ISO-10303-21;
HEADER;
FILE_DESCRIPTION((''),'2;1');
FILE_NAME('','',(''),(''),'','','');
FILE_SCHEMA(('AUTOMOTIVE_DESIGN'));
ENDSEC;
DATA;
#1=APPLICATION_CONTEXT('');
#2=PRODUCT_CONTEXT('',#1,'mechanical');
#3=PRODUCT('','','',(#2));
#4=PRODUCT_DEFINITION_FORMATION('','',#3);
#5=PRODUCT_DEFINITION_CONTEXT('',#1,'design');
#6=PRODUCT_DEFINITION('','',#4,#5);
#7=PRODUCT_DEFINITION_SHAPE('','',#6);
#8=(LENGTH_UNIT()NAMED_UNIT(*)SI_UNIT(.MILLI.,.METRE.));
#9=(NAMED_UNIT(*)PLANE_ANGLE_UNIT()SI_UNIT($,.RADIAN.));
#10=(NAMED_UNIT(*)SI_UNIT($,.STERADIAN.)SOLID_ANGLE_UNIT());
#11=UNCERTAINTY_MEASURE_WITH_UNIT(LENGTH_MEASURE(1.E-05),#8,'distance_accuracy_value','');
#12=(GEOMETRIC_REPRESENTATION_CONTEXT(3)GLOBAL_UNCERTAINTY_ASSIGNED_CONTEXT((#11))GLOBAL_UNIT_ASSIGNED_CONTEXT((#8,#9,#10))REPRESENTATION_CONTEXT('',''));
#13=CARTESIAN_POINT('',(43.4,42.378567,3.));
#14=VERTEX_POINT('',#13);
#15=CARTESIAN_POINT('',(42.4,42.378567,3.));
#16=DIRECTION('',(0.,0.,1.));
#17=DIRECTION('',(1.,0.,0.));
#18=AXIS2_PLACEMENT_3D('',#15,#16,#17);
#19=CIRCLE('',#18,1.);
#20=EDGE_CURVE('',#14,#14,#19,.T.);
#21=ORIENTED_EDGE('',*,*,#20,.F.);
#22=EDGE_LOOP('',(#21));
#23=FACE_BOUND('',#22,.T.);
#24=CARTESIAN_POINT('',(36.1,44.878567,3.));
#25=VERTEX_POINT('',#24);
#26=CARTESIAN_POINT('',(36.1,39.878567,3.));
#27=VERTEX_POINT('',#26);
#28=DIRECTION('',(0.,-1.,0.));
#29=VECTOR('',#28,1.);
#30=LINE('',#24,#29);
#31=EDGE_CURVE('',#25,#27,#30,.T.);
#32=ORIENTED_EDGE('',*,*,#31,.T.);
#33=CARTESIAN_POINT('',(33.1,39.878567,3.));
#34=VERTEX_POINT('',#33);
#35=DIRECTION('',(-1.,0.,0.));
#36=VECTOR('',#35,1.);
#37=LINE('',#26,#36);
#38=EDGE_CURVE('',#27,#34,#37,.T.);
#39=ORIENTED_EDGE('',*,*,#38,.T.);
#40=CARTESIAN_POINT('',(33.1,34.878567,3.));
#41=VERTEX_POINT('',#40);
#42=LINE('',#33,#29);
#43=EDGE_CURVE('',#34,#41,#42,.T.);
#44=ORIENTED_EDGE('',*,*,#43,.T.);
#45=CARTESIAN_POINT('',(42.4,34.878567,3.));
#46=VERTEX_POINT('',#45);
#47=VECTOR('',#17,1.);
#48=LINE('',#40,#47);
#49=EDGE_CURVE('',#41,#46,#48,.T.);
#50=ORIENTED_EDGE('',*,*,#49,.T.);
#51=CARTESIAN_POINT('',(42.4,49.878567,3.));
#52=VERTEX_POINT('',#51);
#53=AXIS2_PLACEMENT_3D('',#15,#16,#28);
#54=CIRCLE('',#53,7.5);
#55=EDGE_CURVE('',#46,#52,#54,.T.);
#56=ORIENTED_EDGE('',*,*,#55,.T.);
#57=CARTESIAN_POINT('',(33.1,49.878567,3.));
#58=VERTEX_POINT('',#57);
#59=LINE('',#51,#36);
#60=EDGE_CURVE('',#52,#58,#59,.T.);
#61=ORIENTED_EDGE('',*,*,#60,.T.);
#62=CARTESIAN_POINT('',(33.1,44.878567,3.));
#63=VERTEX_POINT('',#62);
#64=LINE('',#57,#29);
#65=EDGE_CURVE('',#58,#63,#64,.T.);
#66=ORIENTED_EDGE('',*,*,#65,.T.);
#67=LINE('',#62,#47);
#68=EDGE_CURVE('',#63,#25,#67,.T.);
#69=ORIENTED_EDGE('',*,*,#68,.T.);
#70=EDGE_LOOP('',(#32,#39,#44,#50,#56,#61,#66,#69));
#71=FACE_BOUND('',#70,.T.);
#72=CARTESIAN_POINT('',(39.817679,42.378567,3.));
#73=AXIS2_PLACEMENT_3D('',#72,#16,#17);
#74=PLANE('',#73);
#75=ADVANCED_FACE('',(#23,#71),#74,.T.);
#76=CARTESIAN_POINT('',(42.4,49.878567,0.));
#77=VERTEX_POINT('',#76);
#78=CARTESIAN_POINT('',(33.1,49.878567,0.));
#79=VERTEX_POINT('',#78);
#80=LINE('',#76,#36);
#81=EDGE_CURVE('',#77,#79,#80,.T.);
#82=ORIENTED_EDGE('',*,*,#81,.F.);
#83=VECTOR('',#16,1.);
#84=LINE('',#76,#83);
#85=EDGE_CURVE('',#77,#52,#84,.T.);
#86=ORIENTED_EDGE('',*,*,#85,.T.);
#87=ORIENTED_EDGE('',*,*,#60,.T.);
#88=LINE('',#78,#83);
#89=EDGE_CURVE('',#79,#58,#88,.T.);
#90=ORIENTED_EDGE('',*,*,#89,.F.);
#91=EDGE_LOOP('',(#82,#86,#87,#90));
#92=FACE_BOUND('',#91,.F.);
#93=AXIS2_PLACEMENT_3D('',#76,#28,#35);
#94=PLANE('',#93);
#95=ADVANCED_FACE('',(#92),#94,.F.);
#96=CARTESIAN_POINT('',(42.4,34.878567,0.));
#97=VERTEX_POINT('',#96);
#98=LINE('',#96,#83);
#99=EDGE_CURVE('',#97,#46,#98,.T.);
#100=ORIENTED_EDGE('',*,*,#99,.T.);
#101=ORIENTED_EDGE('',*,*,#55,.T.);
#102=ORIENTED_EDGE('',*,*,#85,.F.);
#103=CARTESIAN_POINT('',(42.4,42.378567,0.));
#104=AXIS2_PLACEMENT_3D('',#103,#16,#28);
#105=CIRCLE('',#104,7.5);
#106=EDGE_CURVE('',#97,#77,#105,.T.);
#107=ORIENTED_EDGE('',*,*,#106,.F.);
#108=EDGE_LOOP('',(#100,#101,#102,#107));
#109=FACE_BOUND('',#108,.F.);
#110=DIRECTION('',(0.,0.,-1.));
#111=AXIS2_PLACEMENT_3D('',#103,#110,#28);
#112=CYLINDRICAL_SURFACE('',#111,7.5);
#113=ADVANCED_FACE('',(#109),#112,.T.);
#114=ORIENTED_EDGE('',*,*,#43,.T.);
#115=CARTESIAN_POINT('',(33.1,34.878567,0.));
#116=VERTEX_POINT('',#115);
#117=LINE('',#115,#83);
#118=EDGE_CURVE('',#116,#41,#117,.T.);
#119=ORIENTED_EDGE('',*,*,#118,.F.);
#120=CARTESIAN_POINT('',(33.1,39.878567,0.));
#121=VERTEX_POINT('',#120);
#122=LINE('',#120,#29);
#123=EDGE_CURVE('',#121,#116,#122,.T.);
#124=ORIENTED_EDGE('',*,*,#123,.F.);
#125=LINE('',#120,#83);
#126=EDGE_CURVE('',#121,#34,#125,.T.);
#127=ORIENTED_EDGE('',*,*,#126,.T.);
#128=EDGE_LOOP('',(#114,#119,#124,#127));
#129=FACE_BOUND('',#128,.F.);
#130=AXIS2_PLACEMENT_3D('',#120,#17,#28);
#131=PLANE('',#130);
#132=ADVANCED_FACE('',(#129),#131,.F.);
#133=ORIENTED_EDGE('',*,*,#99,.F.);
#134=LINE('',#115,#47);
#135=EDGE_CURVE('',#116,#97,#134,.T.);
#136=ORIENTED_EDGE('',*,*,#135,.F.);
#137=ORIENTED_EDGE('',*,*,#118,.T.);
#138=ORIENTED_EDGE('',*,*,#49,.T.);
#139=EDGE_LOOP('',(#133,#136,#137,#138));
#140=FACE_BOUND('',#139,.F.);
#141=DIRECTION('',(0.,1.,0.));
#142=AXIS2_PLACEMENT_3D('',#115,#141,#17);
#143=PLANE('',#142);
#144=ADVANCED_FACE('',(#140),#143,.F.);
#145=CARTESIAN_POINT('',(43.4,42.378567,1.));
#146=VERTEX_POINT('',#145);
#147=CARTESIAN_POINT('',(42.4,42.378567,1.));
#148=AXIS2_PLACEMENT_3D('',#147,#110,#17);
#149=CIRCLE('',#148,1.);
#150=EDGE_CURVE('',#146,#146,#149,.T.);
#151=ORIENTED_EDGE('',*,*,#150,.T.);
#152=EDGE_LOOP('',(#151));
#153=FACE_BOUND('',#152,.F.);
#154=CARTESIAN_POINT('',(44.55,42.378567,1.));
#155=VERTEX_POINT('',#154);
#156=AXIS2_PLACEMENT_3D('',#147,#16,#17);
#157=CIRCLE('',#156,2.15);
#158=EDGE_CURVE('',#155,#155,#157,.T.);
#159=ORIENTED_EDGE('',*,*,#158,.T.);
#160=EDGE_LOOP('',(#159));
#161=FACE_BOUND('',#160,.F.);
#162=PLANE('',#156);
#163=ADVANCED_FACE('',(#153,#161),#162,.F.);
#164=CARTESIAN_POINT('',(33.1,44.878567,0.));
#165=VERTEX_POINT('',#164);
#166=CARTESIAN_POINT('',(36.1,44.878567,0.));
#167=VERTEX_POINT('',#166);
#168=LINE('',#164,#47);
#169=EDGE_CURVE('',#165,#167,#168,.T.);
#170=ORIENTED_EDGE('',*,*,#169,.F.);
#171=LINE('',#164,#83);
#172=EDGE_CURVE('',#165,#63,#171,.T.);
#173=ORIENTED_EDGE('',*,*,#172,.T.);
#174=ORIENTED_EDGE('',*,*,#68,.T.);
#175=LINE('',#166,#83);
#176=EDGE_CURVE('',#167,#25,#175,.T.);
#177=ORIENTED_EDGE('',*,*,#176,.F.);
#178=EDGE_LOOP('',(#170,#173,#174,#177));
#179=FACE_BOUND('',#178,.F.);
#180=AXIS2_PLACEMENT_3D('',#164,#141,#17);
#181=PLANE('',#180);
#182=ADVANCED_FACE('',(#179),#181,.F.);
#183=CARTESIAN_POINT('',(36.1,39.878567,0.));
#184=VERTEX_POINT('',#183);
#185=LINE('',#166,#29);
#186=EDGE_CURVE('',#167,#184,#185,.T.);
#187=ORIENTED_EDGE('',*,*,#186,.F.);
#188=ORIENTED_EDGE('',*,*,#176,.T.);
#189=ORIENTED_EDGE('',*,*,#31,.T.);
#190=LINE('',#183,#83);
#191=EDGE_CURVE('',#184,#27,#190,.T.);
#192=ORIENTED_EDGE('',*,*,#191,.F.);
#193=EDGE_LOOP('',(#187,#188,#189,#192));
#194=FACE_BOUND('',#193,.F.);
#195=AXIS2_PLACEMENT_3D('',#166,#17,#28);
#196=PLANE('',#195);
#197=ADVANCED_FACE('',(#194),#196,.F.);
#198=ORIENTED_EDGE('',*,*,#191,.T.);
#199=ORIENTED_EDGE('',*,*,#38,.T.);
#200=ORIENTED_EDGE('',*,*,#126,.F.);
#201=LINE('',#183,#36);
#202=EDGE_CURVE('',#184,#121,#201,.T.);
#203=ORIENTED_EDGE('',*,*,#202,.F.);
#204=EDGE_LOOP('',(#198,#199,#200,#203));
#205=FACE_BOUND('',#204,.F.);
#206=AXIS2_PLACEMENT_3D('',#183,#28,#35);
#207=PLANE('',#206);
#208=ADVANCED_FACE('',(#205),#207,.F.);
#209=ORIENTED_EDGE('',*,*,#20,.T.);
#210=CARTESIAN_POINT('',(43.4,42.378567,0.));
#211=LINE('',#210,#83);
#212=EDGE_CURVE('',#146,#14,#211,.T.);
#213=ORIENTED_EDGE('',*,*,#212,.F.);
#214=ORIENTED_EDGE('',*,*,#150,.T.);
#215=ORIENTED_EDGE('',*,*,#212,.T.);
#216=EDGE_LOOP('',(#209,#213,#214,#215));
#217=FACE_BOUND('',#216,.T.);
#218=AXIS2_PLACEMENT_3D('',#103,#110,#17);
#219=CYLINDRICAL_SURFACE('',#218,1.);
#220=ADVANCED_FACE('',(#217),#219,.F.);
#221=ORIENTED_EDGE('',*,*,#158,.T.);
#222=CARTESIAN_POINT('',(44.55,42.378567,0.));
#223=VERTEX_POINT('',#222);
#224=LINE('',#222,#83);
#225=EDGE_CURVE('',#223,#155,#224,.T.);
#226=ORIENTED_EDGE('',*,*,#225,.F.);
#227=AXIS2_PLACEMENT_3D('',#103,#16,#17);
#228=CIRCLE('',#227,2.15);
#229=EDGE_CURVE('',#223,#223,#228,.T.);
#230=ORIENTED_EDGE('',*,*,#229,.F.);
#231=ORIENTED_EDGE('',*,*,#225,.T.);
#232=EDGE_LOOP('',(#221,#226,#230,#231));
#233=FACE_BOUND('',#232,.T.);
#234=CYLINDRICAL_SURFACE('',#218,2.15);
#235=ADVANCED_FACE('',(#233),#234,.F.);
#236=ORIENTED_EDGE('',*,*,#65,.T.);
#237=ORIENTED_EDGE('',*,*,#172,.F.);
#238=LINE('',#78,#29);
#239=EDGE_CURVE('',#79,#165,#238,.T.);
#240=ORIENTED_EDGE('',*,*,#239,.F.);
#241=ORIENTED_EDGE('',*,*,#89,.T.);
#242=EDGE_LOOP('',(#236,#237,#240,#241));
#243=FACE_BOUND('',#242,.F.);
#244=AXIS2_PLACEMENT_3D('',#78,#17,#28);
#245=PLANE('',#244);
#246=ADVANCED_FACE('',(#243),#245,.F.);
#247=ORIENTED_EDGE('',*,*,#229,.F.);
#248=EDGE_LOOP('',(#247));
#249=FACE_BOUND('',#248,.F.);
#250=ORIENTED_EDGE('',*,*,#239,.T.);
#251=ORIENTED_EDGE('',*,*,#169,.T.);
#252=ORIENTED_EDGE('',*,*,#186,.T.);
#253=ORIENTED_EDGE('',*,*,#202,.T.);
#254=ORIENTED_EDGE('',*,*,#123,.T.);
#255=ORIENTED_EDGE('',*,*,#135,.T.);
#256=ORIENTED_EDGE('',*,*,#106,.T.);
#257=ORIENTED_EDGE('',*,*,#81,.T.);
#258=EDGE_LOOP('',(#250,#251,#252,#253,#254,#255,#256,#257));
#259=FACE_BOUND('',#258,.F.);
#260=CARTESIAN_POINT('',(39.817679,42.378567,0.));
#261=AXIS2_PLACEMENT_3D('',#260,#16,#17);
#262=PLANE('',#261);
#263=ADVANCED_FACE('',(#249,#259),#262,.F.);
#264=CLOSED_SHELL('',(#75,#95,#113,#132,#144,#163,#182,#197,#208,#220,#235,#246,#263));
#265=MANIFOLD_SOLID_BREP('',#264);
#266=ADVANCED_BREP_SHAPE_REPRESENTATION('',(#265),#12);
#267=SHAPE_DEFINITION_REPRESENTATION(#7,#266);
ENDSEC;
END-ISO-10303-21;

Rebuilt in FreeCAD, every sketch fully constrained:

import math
import FreeCAD as App
import Part
import Sketcher

V = App.Vector

doc = App.newDocument("Part")
body = doc.addObject("PartDesign::Body", "Body")

sketch1 = body.newObject("Sketcher::SketchObject", "Sketch")
sketch1.AttachmentSupport = (doc.getObject("XY_Plane"), [""])
sketch1.MapMode = "FlatFace"
sketch1.addGeometry([
    Part.LineSegment(V(42.4, 49.9, 0), V(33.1, 49.9, 0)),
    Part.LineSegment(V(33.1, 49.9, 0), V(33.1, 44.9, 0)),
    Part.LineSegment(V(33.1, 44.9, 0), V(36.1, 44.9, 0)),
    Part.LineSegment(V(36.1, 44.9, 0), V(36.1, 39.9, 0)),
    Part.LineSegment(V(36.1, 39.9, 0), V(33.1, 39.9, 0)),
    Part.LineSegment(V(33.1, 39.9, 0), V(33.1, 34.9, 0)),
    Part.LineSegment(V(33.1, 34.9, 0), V(42.4, 34.9, 0)),
    Part.ArcOfCircle(Part.Circle(V(42.4, 42.4, 0), V(0, 0, 1), 7.5), math.radians(-90), math.radians(90)),
    Part.Circle(V(42.4, 42.4, 0), V(0, 0, 1), 1),
], False)
sketch1.addConstraint([
    Sketcher.Constraint("Coincident", 0, 2, 1, 1),
    Sketcher.Constraint("Coincident", 1, 2, 2, 1),
    Sketcher.Constraint("Coincident", 2, 2, 3, 1),
    Sketcher.Constraint("Coincident", 3, 2, 4, 1),
    Sketcher.Constraint("Coincident", 4, 2, 5, 1),
    Sketcher.Constraint("Coincident", 5, 2, 6, 1),
    Sketcher.Constraint("Tangent", 6, 2, 7, 1),
    Sketcher.Constraint("Tangent", 7, 2, 0, 1),
    Sketcher.Constraint("Horizontal", 0),
    Sketcher.Constraint("Vertical", 1),
    Sketcher.Constraint("Horizontal", 2),
    Sketcher.Constraint("Vertical", 3),
    Sketcher.Constraint("Horizontal", 4),
    Sketcher.Constraint("Vertical", 5),
    Sketcher.Constraint("Horizontal", 6),
    Sketcher.Constraint("Coincident", 8, 3, 7, 3),
    Sketcher.Constraint("Vertical", 1, 2, 4, 2),
    Sketcher.Constraint("Equal", 1, 3),
    Sketcher.Constraint("Equal", 3, 5),
    Sketcher.Constraint("Diameter", 8, 2.0),
    Sketcher.Constraint("Radius", 7, 7.5),
    Sketcher.Constraint("DistanceX", 2, 1, 2, 2, 3.0),
    Sketcher.Constraint("DistanceX", 0, 2, 0, 1, 9.3),
    Sketcher.Constraint("DistanceX", -1, 1, 7, 3, 42.4),
    Sketcher.Constraint("DistanceY", -1, 1, 7, 3, 42.378567),
])
pad1 = body.newObject("PartDesign::Pad", "Pad")
pad1.Profile = sketch1
pad1.Length = 3

sketch2 = body.newObject("Sketcher::SketchObject", "Sketch001")
sketch2.AttachmentSupport = (doc.getObject("XY_Plane"), [""])
sketch2.MapMode = "FlatFace"
sketch2.addGeometry(Part.Circle(V(42.4, 42.4, 0), V(0, 0, 1), 2.1), False)
sketch2.addConstraint([
    Sketcher.Constraint("Diameter", 0, 4.3),
    Sketcher.Constraint("DistanceX", -1, 1, 0, 3, 42.4),
    Sketcher.Constraint("DistanceY", -1, 1, 0, 3, 42.378567),
])
pocket1 = body.newObject("PartDesign::Pocket", "Pocket")
pocket1.Profile = sketch2
pocket1.Length = 1
pocket1.Reversed = True

doc.recompute()
